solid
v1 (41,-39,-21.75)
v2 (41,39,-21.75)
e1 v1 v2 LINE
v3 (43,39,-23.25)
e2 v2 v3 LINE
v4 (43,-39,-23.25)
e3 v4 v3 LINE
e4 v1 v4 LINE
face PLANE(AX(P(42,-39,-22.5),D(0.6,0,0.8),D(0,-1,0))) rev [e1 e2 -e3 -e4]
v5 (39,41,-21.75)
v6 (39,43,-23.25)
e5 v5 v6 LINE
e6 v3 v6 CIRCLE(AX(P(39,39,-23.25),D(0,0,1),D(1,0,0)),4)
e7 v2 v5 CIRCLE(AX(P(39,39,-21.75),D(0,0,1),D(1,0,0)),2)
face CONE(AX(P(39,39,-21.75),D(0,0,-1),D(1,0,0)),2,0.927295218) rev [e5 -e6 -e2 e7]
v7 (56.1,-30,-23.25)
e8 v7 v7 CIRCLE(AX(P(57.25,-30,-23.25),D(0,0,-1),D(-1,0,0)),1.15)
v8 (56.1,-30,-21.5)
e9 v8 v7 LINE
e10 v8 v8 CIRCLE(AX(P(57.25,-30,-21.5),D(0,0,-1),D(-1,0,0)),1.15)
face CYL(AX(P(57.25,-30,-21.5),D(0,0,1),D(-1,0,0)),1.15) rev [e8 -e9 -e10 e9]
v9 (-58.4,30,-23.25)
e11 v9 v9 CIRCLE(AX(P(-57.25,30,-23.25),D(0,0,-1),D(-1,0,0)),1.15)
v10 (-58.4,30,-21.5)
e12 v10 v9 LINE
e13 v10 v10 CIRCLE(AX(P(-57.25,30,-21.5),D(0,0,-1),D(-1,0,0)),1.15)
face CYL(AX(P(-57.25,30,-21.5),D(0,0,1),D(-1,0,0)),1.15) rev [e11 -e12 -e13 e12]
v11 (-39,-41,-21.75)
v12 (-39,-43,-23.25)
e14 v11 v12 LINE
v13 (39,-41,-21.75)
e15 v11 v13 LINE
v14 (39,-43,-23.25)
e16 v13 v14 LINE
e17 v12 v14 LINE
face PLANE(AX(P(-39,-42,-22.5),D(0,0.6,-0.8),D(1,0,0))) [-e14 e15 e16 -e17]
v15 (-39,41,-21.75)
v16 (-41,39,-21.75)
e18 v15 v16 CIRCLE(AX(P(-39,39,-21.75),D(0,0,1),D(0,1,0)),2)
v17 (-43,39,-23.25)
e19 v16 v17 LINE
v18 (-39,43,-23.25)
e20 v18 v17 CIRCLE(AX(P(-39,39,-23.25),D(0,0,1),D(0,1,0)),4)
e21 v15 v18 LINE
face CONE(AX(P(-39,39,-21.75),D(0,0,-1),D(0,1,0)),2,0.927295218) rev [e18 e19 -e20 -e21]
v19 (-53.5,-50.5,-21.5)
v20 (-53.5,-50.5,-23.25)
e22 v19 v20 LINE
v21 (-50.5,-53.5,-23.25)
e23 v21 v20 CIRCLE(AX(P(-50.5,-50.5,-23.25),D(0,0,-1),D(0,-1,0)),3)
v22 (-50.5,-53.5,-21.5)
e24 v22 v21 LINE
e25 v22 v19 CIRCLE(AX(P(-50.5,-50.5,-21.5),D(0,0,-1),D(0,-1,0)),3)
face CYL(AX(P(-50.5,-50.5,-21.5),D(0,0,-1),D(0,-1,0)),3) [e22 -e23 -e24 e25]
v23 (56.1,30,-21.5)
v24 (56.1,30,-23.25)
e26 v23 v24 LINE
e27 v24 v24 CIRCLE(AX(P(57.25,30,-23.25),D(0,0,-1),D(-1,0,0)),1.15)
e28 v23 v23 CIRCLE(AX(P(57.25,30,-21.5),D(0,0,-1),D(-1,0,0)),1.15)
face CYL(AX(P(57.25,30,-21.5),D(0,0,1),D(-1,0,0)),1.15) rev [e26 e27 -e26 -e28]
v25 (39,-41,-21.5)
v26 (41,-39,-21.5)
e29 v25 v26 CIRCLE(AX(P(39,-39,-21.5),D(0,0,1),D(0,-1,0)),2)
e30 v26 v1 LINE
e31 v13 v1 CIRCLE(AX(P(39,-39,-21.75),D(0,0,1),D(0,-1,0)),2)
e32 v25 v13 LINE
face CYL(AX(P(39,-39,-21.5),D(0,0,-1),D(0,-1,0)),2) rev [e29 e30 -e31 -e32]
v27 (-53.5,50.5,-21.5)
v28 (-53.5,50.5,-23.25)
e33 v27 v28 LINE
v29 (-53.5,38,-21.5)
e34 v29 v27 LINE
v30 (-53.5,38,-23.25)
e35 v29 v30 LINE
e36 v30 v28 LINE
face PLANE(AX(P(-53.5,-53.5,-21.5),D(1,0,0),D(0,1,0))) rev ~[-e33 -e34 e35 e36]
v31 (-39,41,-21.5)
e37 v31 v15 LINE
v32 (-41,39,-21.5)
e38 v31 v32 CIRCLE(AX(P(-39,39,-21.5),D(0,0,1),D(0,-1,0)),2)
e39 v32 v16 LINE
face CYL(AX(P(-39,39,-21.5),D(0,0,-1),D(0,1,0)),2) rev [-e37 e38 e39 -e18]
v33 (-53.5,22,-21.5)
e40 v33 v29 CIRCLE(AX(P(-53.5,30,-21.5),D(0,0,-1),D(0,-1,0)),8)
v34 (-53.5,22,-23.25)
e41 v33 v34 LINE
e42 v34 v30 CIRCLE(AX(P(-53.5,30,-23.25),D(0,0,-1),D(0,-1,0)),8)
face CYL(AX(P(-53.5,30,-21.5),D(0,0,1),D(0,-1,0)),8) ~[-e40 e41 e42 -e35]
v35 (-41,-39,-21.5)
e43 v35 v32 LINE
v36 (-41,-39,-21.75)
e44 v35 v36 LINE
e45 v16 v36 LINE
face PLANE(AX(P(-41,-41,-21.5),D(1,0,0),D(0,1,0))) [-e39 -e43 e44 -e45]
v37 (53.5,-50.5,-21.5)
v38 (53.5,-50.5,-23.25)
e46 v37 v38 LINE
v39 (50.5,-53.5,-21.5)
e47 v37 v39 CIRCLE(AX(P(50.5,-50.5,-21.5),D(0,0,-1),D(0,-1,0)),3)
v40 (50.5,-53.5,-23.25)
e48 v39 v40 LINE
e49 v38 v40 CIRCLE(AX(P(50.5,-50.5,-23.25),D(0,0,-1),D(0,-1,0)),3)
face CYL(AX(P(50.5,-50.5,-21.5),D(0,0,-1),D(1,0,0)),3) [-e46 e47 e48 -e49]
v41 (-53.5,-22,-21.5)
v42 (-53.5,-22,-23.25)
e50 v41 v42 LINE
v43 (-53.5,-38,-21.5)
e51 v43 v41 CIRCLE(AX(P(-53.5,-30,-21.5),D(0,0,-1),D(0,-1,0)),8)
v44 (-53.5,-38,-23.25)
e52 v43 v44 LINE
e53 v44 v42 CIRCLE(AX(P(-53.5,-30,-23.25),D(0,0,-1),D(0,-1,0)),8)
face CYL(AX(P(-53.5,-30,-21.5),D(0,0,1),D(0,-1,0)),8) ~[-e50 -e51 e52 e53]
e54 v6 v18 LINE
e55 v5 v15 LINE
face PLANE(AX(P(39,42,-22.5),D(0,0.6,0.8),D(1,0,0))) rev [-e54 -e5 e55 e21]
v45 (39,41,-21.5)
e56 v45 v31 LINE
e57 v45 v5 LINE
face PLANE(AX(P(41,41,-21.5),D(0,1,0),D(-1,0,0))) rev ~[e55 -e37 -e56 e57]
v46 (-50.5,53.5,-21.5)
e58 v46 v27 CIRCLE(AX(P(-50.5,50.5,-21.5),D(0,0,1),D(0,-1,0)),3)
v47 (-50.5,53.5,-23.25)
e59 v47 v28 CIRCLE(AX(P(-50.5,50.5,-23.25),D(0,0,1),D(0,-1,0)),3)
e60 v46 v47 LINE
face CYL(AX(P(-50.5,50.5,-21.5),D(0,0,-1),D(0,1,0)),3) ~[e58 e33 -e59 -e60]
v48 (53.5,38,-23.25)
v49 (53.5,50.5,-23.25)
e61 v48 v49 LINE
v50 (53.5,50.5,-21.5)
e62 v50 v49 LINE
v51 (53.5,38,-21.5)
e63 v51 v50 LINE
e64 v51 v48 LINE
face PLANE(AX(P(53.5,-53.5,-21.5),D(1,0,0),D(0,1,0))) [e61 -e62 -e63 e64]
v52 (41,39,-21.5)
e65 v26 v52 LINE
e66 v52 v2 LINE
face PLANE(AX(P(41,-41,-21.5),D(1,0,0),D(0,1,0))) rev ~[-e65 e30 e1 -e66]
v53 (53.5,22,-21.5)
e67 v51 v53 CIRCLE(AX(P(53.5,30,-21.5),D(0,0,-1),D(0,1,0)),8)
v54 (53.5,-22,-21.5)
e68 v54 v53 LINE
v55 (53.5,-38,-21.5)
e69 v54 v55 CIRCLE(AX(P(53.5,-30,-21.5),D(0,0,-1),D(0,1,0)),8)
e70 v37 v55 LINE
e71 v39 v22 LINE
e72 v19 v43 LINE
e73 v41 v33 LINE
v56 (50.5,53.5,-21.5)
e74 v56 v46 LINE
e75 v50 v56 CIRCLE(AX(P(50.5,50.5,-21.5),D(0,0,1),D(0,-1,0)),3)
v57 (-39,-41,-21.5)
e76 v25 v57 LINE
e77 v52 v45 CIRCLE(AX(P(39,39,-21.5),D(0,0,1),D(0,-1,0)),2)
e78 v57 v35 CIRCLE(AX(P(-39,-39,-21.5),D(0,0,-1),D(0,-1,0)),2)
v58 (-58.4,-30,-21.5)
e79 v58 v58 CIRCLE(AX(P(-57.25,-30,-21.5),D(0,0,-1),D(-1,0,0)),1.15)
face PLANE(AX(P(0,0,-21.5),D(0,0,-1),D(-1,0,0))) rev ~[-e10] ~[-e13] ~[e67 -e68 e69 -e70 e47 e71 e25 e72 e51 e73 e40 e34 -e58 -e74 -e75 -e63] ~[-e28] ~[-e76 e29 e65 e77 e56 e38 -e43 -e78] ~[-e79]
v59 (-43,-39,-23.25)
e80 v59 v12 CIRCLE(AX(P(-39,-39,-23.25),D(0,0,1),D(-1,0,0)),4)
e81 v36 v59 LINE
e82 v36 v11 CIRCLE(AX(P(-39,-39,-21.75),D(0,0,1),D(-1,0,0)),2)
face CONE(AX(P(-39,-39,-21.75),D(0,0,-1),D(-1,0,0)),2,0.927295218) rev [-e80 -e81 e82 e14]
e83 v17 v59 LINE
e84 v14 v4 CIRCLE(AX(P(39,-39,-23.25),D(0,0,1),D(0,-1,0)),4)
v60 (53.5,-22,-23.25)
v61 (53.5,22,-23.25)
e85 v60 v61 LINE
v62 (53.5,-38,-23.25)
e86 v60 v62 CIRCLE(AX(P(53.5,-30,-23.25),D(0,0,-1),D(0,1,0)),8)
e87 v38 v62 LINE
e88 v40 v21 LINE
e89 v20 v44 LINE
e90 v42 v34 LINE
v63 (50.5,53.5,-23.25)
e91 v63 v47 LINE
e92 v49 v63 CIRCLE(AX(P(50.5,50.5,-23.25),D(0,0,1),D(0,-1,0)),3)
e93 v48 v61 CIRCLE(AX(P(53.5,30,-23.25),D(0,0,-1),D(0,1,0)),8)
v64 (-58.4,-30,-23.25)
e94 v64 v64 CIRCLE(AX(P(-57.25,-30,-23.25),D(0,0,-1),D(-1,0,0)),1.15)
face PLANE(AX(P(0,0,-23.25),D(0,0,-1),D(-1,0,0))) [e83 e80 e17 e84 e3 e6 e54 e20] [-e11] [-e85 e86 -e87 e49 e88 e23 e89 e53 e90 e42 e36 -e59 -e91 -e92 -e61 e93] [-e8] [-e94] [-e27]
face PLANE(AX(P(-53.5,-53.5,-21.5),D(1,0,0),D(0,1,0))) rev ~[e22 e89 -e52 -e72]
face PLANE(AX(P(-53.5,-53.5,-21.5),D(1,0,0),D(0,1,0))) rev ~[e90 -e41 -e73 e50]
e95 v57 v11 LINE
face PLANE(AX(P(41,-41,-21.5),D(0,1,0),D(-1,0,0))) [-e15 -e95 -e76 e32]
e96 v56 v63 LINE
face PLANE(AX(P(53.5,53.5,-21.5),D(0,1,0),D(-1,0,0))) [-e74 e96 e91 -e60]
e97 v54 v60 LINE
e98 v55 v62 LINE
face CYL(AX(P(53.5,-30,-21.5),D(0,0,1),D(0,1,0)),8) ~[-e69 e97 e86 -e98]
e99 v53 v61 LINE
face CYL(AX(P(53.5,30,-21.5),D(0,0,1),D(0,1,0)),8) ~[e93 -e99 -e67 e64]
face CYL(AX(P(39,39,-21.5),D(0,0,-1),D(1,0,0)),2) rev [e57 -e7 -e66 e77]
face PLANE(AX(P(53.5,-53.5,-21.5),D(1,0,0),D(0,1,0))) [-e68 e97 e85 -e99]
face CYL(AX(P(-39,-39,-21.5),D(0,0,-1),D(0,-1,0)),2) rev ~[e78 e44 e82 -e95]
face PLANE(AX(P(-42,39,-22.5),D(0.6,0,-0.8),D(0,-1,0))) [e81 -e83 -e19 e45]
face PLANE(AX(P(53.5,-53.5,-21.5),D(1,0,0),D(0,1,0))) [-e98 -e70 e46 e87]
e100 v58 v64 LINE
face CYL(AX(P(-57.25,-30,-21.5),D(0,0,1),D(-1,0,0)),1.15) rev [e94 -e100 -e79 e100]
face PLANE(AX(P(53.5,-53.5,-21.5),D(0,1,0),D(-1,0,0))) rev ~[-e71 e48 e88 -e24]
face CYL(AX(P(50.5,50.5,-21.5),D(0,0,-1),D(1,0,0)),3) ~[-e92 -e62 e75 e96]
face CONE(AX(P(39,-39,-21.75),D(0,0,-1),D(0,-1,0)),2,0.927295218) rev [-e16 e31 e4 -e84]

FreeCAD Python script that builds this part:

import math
import FreeCAD as App
import Part
import Sketcher

V = App.Vector
Q = App.Units.Quantity


def edges_at(feature, points):
    """Names of the edges that pass closest to the given points."""
    edges = feature.Shape.Edges
    near = lambda p: min(range(len(edges)), key=lambda i: edges[i].distToShape(Part.Vertex(*p))[0])
    return sorted({f"Edge{near(p) + 1}" for p in points})

doc = App.newDocument("Part")
body = doc.addObject("PartDesign::Body", "Body")

# Sketch on XY plane
sketch1 = doc.addObject("Sketcher::SketchObject", "Sketch")
body.addObject(sketch1)
sketch1.AttachmentSupport = (doc.XY_Plane, [""])
sketch1.MapMode = "FlatFace"
sketch1.addGeometry([
    Part.LineSegment(V(-54, 54, 0), V(-54, -54, 0)),  # 0
    Part.LineSegment(V(-54, -54, 0), V(54, -54, 0)),  # 1
    Part.LineSegment(V(54, -54, 0), V(54, 54, 0)),  # 2
    Part.LineSegment(V(54, 54, 0), V(-54, 54, 0)),  # 3
    Part.LineSegment(V(41, -41, 0), V(-41, -41, 0)),  # 4
    Part.LineSegment(V(-41, -41, 0), V(-41, 41, 0)),  # 5
    Part.LineSegment(V(-41, 41, 0), V(41, 41, 0)),  # 6
    Part.LineSegment(V(41, 41, 0), V(41, -41, 0)),  # 7
], False)
sketch1.addConstraint([
    Sketcher.Constraint("Coincident", 0, 2, 1, 1),
    Sketcher.Constraint("Coincident", 1, 2, 2, 1),
    Sketcher.Constraint("Coincident", 2, 2, 3, 1),
    Sketcher.Constraint("Coincident", 3, 2, 0, 1),
    Sketcher.Constraint("Coincident", 4, 2, 5, 1),
    Sketcher.Constraint("Coincident", 5, 2, 6, 1),
    Sketcher.Constraint("Coincident", 6, 2, 7, 1),
    Sketcher.Constraint("Coincident", 7, 2, 4, 1),
    Sketcher.Constraint("Vertical", 0),
    Sketcher.Constraint("Horizontal", 1),
    Sketcher.Constraint("Vertical", 2),
    Sketcher.Constraint("Horizontal", 3),
    Sketcher.Constraint("Horizontal", 4),
    Sketcher.Constraint("Vertical", 5),
    Sketcher.Constraint("Horizontal", 6),
    Sketcher.Constraint("Vertical", 7),
    Sketcher.Constraint("Symmetric", 0, 2, 2, 2, -1, 1),
    Sketcher.Constraint("Symmetric", 4, 2, 6, 2, -1, 1),
    Sketcher.Constraint("Equal", 3, 0),
    Sketcher.Constraint("Equal", 6, 5),
    Sketcher.Constraint("DistanceX", 1, 1, 1, 2, Q("107 mm")),
    Sketcher.Constraint("DistanceX", 4, 2, 4, 1, Q("82 mm")),
])
pad1 = doc.addObject("PartDesign::Pad", "Pad")
body.addObject(pad1)
pad1.Profile = sketch1
pad1.Length = 1.75

# Sketch on XY plane
sketch2 = doc.addObject("Sketcher::SketchObject", "Sketch001")
body.addObject(sketch2)
sketch2.AttachmentSupport = (doc.XY_Plane, [""])
sketch2.MapMode = "FlatFace"
sketch2.addGeometry([
    Part.ArcOfCircle(Part.Circle(V(-53.5, 30, 0), V(0, 0, 1), 8), math.radians(90), math.radians(270)),  # 0
    Part.LineSegment(V(-53.5, 22, 0), V(-53.5, 38, 0)),  # 1
    Part.Circle(V(-57.2, 30, 0), V(0, 0, 1), 1.1),  # 2
    Part.ArcOfCircle(Part.Circle(V(-53.5, -30, 0), V(0, 0, 1), 8), math.radians(90), math.radians(270)),  # 3
    Part.LineSegment(V(-53.5, -38, 0), V(-53.5, -22, 0)),  # 4
    Part.Circle(V(-57.2, -30, 0), V(0, 0, 1), 1.1),  # 5
    Part.LineSegment(V(53.5, 38, 0), V(53.5, 22, 0)),  # 6
    Part.ArcOfCircle(Part.Circle(V(53.5, 30, 0), V(0, 0, 1), 8), math.radians(-90), math.radians(90)),  # 7
    Part.Circle(V(57.2, 30, 0), V(0, 0, 1), 1.1),  # 8
    Part.ArcOfCircle(Part.Circle(V(53.5, -30, 0), V(0, 0, 1), 8), math.radians(-90), math.radians(90)),  # 9
    Part.LineSegment(V(53.5, -22, 0), V(53.5, -38, 0)),  # 10
    Part.Circle(V(57.2, -30, 0), V(0, 0, 1), 1.1),  # 11
], False)
sketch2.addConstraint([
    Sketcher.Constraint("Coincident", 0, 1, 1, 2),
    Sketcher.Constraint("Coincident", 1, 1, 0, 2),
    Sketcher.Constraint("Coincident", 3, 1, 4, 2),
    Sketcher.Constraint("Coincident", 4, 1, 3, 2),
    Sketcher.Constraint("Coincident", 6, 1, 7, 2),
    Sketcher.Constraint("Coincident", 7, 1, 6, 2),
    Sketcher.Constraint("Coincident", 9, 1, 10, 2),
    Sketcher.Constraint("Coincident", 10, 1, 9, 2),
    Sketcher.Constraint("Vertical", 1),
    Sketcher.Constraint("Vertical", 4),
    Sketcher.Constraint("Vertical", 6),
    Sketcher.Constraint("Vertical", 10),
    Sketcher.Constraint("Equal", 0, 3),
    Sketcher.Constraint("Equal", 2, 5),
    Sketcher.Constraint("Equal", 3, 7),
    Sketcher.Constraint("Equal", 5, 8),
    Sketcher.Constraint("Equal", 7, 9),
    Sketcher.Constraint("Equal", 8, 11),
    Sketcher.Constraint("Symmetric", 3, 3, 7, 3, -1, 1),
    Sketcher.Constraint("Symmetric", 5, 3, 8, 3, -1, 1),
    Sketcher.Constraint("Symmetric", 0, 3, 9, 3, -1, 1),
    Sketcher.Constraint("Symmetric", 2, 3, 11, 3, -1, 1),
    Sketcher.Constraint("Symmetric", 0, 3, 7, 3, -2),
    Sketcher.Constraint("Symmetric", 2, 3, 8, 3, -2),
    Sketcher.Constraint("Horizontal", 0, 3, 2, 3),
    Sketcher.Constraint("Vertical", 3, 3, 0, 1),
    Sketcher.Constraint("Vertical", 1, 1, 3, 1),
    Sketcher.Constraint("Vertical", 9, 3, 6, 1),
    Sketcher.Constraint("Vertical", 7, 1, 9, 1),
    Sketcher.Constraint("Radius", 0, Q("8 mm")),
    Sketcher.Constraint("Diameter", 2, Q("2.3 mm")),
    Sketcher.Constraint("DistanceY", -1, 1, 0, 3, Q("30 mm")),
    Sketcher.Constraint("DistanceX", 0, 3, 7, 3, Q("107 mm")),
    Sketcher.Constraint("DistanceX", 2, 3, 8, 3, Q("114.5 mm")),
])
pad2 = doc.addObject("PartDesign::Pad", "Pad001")
body.addObject(pad2)
pad2.Profile = sketch2
pad2.Length = 1.75
doc.recompute()

fillet = doc.addObject("PartDesign::Fillet", "Fillet")
body.addObject(fillet)
fillet.Base = (pad2, edges_at(pad2, [
    (-53.5, 53.5, 0.875),
    (53.5, 53.5, 0.875),
    (53.5, -53.5, 0.875),
    (-53.5, -53.5, 0.875),
]))
fillet.Radius = 3
doc.recompute()

fillet2 = doc.addObject("PartDesign::Fillet", "Fillet001")
body.addObject(fillet2)
fillet2.Base = (fillet, edges_at(fillet, [
    (-41, 41, 0.875),
    (41, 41, 0.875),
    (41, -41, 0.875),
    (-41, -41, 0.875),
]))
fillet2.Radius = 2
doc.recompute()

chamfer = doc.addObject("PartDesign::Chamfer", "Chamfer")
body.addObject(chamfer)
chamfer.Base = (fillet2, edges_at(fillet2, [(-41, 0, 1.75)]))
chamfer.ChamferType = "Two distances"
chamfer.Size = 1.5
chamfer.Size2 = 2
body2 = doc.addObject("PartDesign::Body", "Body001")
doc.recompute()

body.Placement = App.Placement(V(0, 0, 21.5), App.Rotation(V(0, 0, 1), 0))
boolean = doc.addObject("PartDesign::Boolean", "Boolean")
body2.addObject(boolean)
boolean.Type = "Fuse"
boolean.addObjects([body])
body3 = doc.addObject("PartDesign::Body", "Body002")
doc.recompute()

body2.Placement = App.Placement(V(0, 0, 0), App.Rotation(V(0, 1, 0), 180))
boolean2 = doc.addObject("PartDesign::Boolean", "Boolean001")
body3.addObject(boolean2)
boolean2.Type = "Fuse"
boolean2.addObjects([body2])

doc.recompute()
